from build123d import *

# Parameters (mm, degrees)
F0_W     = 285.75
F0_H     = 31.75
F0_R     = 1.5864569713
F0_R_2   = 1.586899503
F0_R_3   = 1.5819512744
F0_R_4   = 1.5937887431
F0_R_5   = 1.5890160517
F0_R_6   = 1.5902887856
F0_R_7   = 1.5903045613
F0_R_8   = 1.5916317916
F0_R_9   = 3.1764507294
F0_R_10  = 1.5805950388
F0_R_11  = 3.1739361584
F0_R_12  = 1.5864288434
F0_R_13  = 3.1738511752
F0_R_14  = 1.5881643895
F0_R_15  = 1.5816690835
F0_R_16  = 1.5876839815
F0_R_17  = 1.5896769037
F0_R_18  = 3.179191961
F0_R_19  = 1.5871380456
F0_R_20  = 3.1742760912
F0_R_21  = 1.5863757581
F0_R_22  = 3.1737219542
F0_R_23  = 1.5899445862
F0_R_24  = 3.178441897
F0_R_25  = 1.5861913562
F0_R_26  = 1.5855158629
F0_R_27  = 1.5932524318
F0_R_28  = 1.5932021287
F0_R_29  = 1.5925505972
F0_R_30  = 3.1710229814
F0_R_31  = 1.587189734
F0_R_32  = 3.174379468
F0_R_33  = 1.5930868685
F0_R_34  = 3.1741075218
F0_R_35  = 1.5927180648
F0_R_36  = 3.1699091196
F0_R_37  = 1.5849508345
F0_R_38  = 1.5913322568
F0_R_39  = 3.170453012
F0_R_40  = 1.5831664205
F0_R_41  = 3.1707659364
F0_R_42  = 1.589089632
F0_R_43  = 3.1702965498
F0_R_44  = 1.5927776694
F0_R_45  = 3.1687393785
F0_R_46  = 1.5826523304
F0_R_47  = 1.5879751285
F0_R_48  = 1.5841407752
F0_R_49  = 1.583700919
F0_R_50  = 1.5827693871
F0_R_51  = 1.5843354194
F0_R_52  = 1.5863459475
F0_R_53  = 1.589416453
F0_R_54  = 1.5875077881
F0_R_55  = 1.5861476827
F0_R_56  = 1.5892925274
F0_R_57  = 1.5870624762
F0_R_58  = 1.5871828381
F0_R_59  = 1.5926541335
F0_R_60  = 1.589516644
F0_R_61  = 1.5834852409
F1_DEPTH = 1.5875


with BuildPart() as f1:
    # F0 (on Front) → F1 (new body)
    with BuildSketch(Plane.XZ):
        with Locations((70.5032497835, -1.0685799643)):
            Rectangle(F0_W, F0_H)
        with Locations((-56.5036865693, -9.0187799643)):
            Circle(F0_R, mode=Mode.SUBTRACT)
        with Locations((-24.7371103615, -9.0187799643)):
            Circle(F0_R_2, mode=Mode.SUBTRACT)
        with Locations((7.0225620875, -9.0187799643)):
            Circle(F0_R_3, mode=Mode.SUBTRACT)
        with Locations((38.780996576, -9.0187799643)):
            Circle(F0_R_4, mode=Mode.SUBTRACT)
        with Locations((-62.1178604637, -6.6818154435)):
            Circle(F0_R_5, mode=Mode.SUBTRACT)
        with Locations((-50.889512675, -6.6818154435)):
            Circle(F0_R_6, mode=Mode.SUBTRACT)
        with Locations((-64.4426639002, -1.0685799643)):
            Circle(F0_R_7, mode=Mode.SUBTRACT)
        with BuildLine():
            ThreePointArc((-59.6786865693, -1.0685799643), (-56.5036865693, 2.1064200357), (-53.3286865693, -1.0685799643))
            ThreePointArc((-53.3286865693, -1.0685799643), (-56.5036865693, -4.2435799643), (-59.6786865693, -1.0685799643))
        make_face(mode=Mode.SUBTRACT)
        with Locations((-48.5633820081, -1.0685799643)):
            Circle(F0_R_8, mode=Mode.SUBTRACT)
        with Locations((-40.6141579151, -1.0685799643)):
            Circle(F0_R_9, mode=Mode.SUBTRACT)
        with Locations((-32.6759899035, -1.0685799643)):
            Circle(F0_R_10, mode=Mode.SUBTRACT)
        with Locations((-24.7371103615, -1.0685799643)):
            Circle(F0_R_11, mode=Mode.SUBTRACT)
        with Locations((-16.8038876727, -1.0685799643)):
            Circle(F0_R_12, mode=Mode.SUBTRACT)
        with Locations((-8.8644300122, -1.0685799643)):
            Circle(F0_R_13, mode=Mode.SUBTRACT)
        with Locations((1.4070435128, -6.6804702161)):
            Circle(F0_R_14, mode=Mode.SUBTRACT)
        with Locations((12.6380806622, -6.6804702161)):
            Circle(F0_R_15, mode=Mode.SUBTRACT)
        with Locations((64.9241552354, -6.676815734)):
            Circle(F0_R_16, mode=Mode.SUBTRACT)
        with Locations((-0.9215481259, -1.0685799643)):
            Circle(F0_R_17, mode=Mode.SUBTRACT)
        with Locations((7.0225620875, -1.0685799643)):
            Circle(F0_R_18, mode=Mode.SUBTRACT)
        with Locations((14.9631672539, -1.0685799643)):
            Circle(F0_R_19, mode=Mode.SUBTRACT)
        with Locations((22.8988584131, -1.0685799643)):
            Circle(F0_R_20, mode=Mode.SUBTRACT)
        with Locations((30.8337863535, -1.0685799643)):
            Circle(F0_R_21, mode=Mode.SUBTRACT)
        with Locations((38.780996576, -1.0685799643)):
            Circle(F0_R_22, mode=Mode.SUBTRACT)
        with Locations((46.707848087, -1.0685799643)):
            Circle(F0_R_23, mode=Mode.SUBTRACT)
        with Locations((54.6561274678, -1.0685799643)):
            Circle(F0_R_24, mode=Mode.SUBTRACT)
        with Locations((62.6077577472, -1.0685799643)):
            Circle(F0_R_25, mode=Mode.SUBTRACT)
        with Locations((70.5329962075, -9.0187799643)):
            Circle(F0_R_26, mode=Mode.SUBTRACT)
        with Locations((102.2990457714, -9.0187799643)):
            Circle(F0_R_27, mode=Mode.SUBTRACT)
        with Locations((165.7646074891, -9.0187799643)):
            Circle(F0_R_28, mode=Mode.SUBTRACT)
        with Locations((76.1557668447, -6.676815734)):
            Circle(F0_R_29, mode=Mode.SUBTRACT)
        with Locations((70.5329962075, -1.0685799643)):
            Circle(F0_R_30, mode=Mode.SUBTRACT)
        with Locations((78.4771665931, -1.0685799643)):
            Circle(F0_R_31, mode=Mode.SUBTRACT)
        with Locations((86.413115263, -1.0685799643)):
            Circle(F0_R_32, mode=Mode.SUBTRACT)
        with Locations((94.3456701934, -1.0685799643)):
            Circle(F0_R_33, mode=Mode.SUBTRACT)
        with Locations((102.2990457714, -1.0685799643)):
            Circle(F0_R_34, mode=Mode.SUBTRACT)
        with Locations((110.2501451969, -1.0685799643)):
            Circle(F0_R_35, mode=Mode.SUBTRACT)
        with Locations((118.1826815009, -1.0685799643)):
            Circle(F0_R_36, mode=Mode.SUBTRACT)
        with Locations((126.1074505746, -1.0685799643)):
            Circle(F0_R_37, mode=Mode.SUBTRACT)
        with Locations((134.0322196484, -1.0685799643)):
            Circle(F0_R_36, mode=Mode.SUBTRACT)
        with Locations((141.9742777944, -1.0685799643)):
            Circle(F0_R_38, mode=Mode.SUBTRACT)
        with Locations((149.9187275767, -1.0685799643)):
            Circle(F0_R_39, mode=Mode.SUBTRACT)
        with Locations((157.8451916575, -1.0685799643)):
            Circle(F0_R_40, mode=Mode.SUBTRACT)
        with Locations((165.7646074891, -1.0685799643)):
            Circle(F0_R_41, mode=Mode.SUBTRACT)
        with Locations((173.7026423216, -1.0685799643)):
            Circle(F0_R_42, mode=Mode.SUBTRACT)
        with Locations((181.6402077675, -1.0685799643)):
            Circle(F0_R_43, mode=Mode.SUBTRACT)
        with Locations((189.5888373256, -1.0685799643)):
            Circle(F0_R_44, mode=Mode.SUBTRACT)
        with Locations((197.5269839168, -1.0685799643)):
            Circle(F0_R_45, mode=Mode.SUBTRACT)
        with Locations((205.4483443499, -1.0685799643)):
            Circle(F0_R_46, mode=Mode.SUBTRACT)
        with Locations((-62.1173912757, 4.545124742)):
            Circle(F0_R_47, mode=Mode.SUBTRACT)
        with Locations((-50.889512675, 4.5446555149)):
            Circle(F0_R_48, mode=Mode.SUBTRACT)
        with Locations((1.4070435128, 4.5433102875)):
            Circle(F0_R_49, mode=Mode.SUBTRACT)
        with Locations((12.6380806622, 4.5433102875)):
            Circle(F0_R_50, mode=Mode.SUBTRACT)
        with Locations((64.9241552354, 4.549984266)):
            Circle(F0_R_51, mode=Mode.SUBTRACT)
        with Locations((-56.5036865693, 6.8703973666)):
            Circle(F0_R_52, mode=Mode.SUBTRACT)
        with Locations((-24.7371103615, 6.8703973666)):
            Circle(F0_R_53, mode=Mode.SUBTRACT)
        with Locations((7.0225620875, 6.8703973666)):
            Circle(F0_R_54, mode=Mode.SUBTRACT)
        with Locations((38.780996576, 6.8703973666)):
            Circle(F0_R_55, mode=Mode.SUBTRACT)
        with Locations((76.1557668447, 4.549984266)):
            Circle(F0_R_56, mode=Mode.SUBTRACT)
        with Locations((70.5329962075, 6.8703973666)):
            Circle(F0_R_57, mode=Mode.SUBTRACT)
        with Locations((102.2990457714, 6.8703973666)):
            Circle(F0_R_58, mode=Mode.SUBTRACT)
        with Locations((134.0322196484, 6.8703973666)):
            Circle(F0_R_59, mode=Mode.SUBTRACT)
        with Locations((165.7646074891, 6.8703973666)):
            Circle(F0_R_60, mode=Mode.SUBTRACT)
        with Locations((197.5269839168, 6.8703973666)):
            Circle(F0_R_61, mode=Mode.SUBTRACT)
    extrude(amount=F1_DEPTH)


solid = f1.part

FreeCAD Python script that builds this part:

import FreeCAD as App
import Part
import Sketcher
Q = App.Units.Quantity

doc = App.newDocument("Part")
body = doc.addObject("PartDesign::Body", "Body")

# Sketch on XZ plane
sketch1 = body.newObject("Sketcher::SketchObject", "Sketch")
sketch1.AttachmentSupport = (doc.getObject("XZ_Plane"), [""])
sketch1.MapMode = "FlatFace"
sketch1.addGeometry([
    Part.LineSegment(App.Vector(-72.4, 14.8, 0), App.Vector(-72.4, -16.9, 0)),  # 0
    Part.LineSegment(App.Vector(-72.4, -16.9, 0), App.Vector(213.4, -16.9, 0)),  # 1
    Part.LineSegment(App.Vector(213.4, -16.9, 0), App.Vector(213.4, 14.8, 0)),  # 2
    Part.LineSegment(App.Vector(213.4, 14.8, 0), App.Vector(-72.4, 14.8, 0)),  # 3
    Part.Circle(App.Vector(-56.5, -9, 0), App.Vector(0, 0, 1), 1.6),  # 4
    Part.Circle(App.Vector(-24.7, -9, 0), App.Vector(0, 0, 1), 1.6),  # 5
    Part.Circle(App.Vector(-62.1, -6.7, 0), App.Vector(0, 0, 1), 1.6),  # 6
    Part.Circle(App.Vector(-50.9, -6.7, 0), App.Vector(0, 0, 1), 1.6),  # 7
    Part.Circle(App.Vector(1.4, -6.7, 0), App.Vector(0, 0, 1), 1.6),  # 8
    Part.Circle(App.Vector(7, -9, 0), App.Vector(0, 0, 1), 1.6),  # 9
    Part.Circle(App.Vector(38.8, -9, 0), App.Vector(0, 0, 1), 1.6),  # 10
    Part.Circle(App.Vector(12.6, -6.7, 0), App.Vector(0, 0, 1), 1.6),  # 11
    Part.Circle(App.Vector(64.9, -6.7, 0), App.Vector(0, 0, 1), 1.6),  # 12
    Part.Circle(App.Vector(70.5, -9, 0), App.Vector(0, 0, 1), 1.6),  # 13
    Part.Circle(App.Vector(102.3, -9, 0), App.Vector(0, 0, 1), 1.6),  # 14
    Part.Circle(App.Vector(76.2, -6.7, 0), App.Vector(0, 0, 1), 1.6),  # 15
    Part.Circle(App.Vector(165.8, -9, 0), App.Vector(0, 0, 1), 1.6),  # 16
    Part.Circle(App.Vector(-64.4, -1.1, 0), App.Vector(0, 0, 1), 1.6),  # 17
    Part.Circle(App.Vector(-56.5, -1.1, 0), App.Vector(0, 0, 1), 3.2),  # 18
    Part.Circle(App.Vector(-48.6, -1.1, 0), App.Vector(0, 0, 1), 1.6),  # 19
    Part.Circle(App.Vector(-40.6, -1.1, 0), App.Vector(0, 0, 1), 3.2),  # 20
    Part.Circle(App.Vector(-32.7, -1.1, 0), App.Vector(0, 0, 1), 1.6),  # 21
    Part.Circle(App.Vector(-24.7, -1.1, 0), App.Vector(0, 0, 1), 3.2),  # 22
    Part.Circle(App.Vector(-16.8, -1.1, 0), App.Vector(0, 0, 1), 1.6),  # 23
    Part.Circle(App.Vector(-8.9, -1.1, 0), App.Vector(0, 0, 1), 3.2),  # 24
    Part.Circle(App.Vector(-0.9, -1.1, 0), App.Vector(0, 0, 1), 1.6),  # 25
    Part.Circle(App.Vector(7, -1.1, 0), App.Vector(0, 0, 1), 3.2),  # 26
    Part.Circle(App.Vector(15, -1.1, 0), App.Vector(0, 0, 1), 1.6),  # 27
    Part.Circle(App.Vector(22.9, -1.1, 0), App.Vector(0, 0, 1), 3.2),  # 28
    Part.Circle(App.Vector(30.8, -1.1, 0), App.Vector(0, 0, 1), 1.6),  # 29
    Part.Circle(App.Vector(38.8, -1.1, 0), App.Vector(0, 0, 1), 3.2),  # 30
    Part.Circle(App.Vector(46.7, -1.1, 0), App.Vector(0, 0, 1), 1.6),  # 31
    Part.Circle(App.Vector(54.7, -1.1, 0), App.Vector(0, 0, 1), 3.2),  # 32
    Part.Circle(App.Vector(62.6, -1.1, 0), App.Vector(0, 0, 1), 1.6),  # 33
    Part.Circle(App.Vector(-62.1, 4.5, 0), App.Vector(0, 0, 1), 1.6),  # 34
    Part.Circle(App.Vector(-50.9, 4.5, 0), App.Vector(0, 0, 1), 1.6),  # 35
    Part.Circle(App.Vector(1.4, 4.5, 0), App.Vector(0, 0, 1), 1.6),  # 36
    Part.Circle(App.Vector(-56.5, 6.9, 0), App.Vector(0, 0, 1), 1.6),  # 37
    Part.Circle(App.Vector(-24.7, 6.9, 0), App.Vector(0, 0, 1), 1.6),  # 38
    Part.Circle(App.Vector(12.6, 4.5, 0), App.Vector(0, 0, 1), 1.6),  # 39
    Part.Circle(App.Vector(64.9, 4.5, 0), App.Vector(0, 0, 1), 1.6),  # 40
    Part.Circle(App.Vector(7, 6.9, 0), App.Vector(0, 0, 1), 1.6),  # 41
    Part.Circle(App.Vector(38.8, 6.9, 0), App.Vector(0, 0, 1), 1.6),  # 42
    Part.Circle(App.Vector(70.5, -1.1, 0), App.Vector(0, 0, 1), 3.2),  # 43
    Part.Circle(App.Vector(78.5, -1.1, 0), App.Vector(0, 0, 1), 1.6),  # 44
    Part.Circle(App.Vector(86.4, -1.1, 0), App.Vector(0, 0, 1), 3.2),  # 45
    Part.Circle(App.Vector(94.3, -1.1, 0), App.Vector(0, 0, 1), 1.6),  # 46
    Part.Circle(App.Vector(102.3, -1.1, 0), App.Vector(0, 0, 1), 3.2),  # 47
    Part.Circle(App.Vector(110.3, -1.1, 0), App.Vector(0, 0, 1), 1.6),  # 48
    Part.Circle(App.Vector(118.2, -1.1, 0), App.Vector(0, 0, 1), 3.2),  # 49
    Part.Circle(App.Vector(126.1, -1.1, 0), App.Vector(0, 0, 1), 1.6),  # 50
    Part.Circle(App.Vector(134, -1.1, 0), App.Vector(0, 0, 1), 3.2),  # 51
    Part.Circle(App.Vector(142, -1.1, 0), App.Vector(0, 0, 1), 1.6),  # 52
    Part.Circle(App.Vector(149.9, -1.1, 0), App.Vector(0, 0, 1), 3.2),  # 53
    Part.Circle(App.Vector(157.8, -1.1, 0), App.Vector(0, 0, 1), 1.6),  # 54
    Part.Circle(App.Vector(165.8, -1.1, 0), App.Vector(0, 0, 1), 3.2),  # 55
    Part.Circle(App.Vector(173.7, -1.1, 0), App.Vector(0, 0, 1), 1.6),  # 56
    Part.Circle(App.Vector(181.6, -1.1, 0), App.Vector(0, 0, 1), 3.2),  # 57
    Part.Circle(App.Vector(189.6, -1.1, 0), App.Vector(0, 0, 1), 1.6),  # 58
    Part.Circle(App.Vector(197.5, -1.1, 0), App.Vector(0, 0, 1), 3.2),  # 59
    Part.Circle(App.Vector(205.4, -1.1, 0), App.Vector(0, 0, 1), 1.6),  # 60
    Part.Circle(App.Vector(76.2, 4.5, 0), App.Vector(0, 0, 1), 1.6),  # 61
    Part.Circle(App.Vector(70.5, 6.9, 0), App.Vector(0, 0, 1), 1.6),  # 62
    Part.Circle(App.Vector(102.3, 6.9, 0), App.Vector(0, 0, 1), 1.6),  # 63
    Part.Circle(App.Vector(134, 6.9, 0), App.Vector(0, 0, 1), 1.6),  # 64
    Part.Circle(App.Vector(165.8, 6.9, 0), App.Vector(0, 0, 1), 1.6),  # 65
    Part.Circle(App.Vector(197.5, 6.9, 0), App.Vector(0, 0, 1), 1.6),  # 66
], False)
sketch1.addConstraint([
    Sketcher.Constraint("Coincident", 0, 2, 1, 1),
    Sketcher.Constraint("Coincident", 1, 2, 2, 1),
    Sketcher.Constraint("Coincident", 2, 2, 3, 1),
    Sketcher.Constraint("Coincident", 3, 2, 0, 1),
    Sketcher.Constraint("Vertical", 0),
    Sketcher.Constraint("Horizontal", 1),
    Sketcher.Constraint("Vertical", 2),
    Sketcher.Constraint("Horizontal", 3),
    Sketcher.Constraint("Equal", 49, 51),
    Sketcher.Constraint("Horizontal", 4, 3, 5, 3),
    Sketcher.Constraint("Horizontal", 6, 3, 7, 3),
    Sketcher.Constraint("Horizontal", 5, 3, 9, 3),
    Sketcher.Constraint("Horizontal", 9, 3, 10, 3),
    Sketcher.Constraint("Horizontal", 8, 3, 11, 3),
    Sketcher.Constraint("Horizontal", 10, 3, 13, 3),
    Sketcher.Constraint("Horizontal", 13, 3, 14, 3),
    Sketcher.Constraint("Horizontal", 12, 3, 15, 3),
    Sketcher.Constraint("Horizontal", 14, 3, 16, 3),
    Sketcher.Constraint("Horizontal", 17, 3, 18, 3),
    Sketcher.Constraint("Horizontal", 18, 3, 19, 3),
    Sketcher.Constraint("Horizontal", 19, 3, 20, 3),
    Sketcher.Constraint("Horizontal", 20, 3, 21, 3),
    Sketcher.Constraint("Horizontal", 21, 3, 22, 3),
    Sketcher.Constraint("Horizontal", 22, 3, 23, 3),
    Sketcher.Constraint("Horizontal", 23, 3, 24, 3),
    Sketcher.Constraint("Horizontal", 24, 3, 25, 3),
    Sketcher.Constraint("Horizontal", 25, 3, 26, 3),
    Sketcher.Constraint("Horizontal", 26, 3, 27, 3),
    Sketcher.Constraint("Horizontal", 27, 3, 28, 3),
    Sketcher.Constraint("Horizontal", 28, 3, 29, 3),
    Sketcher.Constraint("Horizontal", 29, 3, 30, 3),
    Sketcher.Constraint("Horizontal", 30, 3, 31, 3),
    Sketcher.Constraint("Horizontal", 31, 3, 32, 3),
    Sketcher.Constraint("Horizontal", 32, 3, 33, 3),
    Sketcher.Constraint("Horizontal", 37, 3, 38, 3),
    Sketcher.Constraint("Horizontal", 36, 3, 39, 3),
    Sketcher.Constraint("Horizontal", 38, 3, 41, 3),
    Sketcher.Constraint("Horizontal", 41, 3, 42, 3),
    Sketcher.Constraint("Horizontal", 33, 3, 43, 3),
    Sketcher.Constraint("Horizontal", 43, 3, 44, 3),
    Sketcher.Constraint("Horizontal", 44, 3, 45, 3),
    Sketcher.Constraint("Horizontal", 45, 3, 46, 3),
    Sketcher.Constraint("Horizontal", 46, 3, 47, 3),
    Sketcher.Constraint("Horizontal", 47, 3, 48, 3),
    Sketcher.Constraint("Horizontal", 48, 3, 49, 3),
    Sketcher.Constraint("Horizontal", 49, 3, 50, 3),
    Sketcher.Constraint("Horizontal", 50, 3, 51, 3),
    Sketcher.Constraint("Horizontal", 51, 3, 52, 3),
    Sketcher.Constraint("Horizontal", 52, 3, 53, 3),
    Sketcher.Constraint("Horizontal", 53, 3, 54, 3),
    Sketcher.Constraint("Horizontal", 54, 3, 55, 3),
    Sketcher.Constraint("Horizontal", 55, 3, 56, 3),
    Sketcher.Constraint("Horizontal", 56, 3, 57, 3),
    Sketcher.Constraint("Horizontal", 57, 3, 58, 3),
    Sketcher.Constraint("Horizontal", 58, 3, 59, 3),
    Sketcher.Constraint("Horizontal", 59, 3, 60, 3),
    Sketcher.Constraint("Horizontal", 40, 3, 61, 3),
    Sketcher.Constraint("Horizontal", 42, 3, 62, 3),
    Sketcher.Constraint("Horizontal", 62, 3, 63, 3),
    Sketcher.Constraint("Horizontal", 63, 3, 64, 3),
    Sketcher.Constraint("Horizontal", 64, 3, 65, 3),
    Sketcher.Constraint("Horizontal", 65, 3, 66, 3),
    Sketcher.Constraint("Vertical", 4, 3, 18, 3),
    Sketcher.Constraint("Vertical", 5, 3, 22, 3),
    Sketcher.Constraint("Vertical", 9, 3, 26, 3),
    Sketcher.Constraint("Vertical", 10, 3, 30, 3),
    Sketcher.Constraint("Vertical", 7, 3, 35, 3),
    Sketcher.Constraint("Vertical", 8, 3, 36, 3),
    Sketcher.Constraint("Vertical", 18, 3, 37, 3),
    Sketcher.Constraint("Vertical", 22, 3, 38, 3),
    Sketcher.Constraint("Vertical", 11, 3, 39, 3),
    Sketcher.Constraint("Vertical", 12, 3, 40, 3),
    Sketcher.Constraint("Vertical", 26, 3, 41, 3),
    Sketcher.Constraint("Vertical", 30, 3, 42, 3),
    Sketcher.Constraint("Vertical", 13, 3, 43, 3),
    Sketcher.Constraint("Vertical", 14, 3, 47, 3),
    Sketcher.Constraint("Vertical", 16, 3, 55, 3),
    Sketcher.Constraint("Vertical", 15, 3, 61, 3),
    Sketcher.Constraint("Vertical", 43, 3, 62, 3),
    Sketcher.Constraint("Vertical", 47, 3, 63, 3),
    Sketcher.Constraint("Vertical", 51, 3, 64, 3),
    Sketcher.Constraint("Vertical", 55, 3, 65, 3),
    Sketcher.Constraint("Vertical", 59, 3, 66, 3),
    Sketcher.Constraint("Diameter", 18, Q("0.25 in")),
    Sketcher.Constraint("DistanceX", 1, 1, 1, 2, Q("11.25 in")),
    Sketcher.Constraint("DistanceY", 0, 2, 0, 1, Q("1.25 in")),
    Sketcher.Constraint("Diameter", 5, 3.173799),
    Sketcher.Constraint("Diameter", 15, 3.185101),
    Sketcher.Constraint("Diameter", 20, 6.352901),
    Sketcher.Constraint("Diameter", 36, 3.167402),
    Sketcher.Constraint("Diameter", 50, 3.169902),
    Sketcher.Constraint("Diameter", 8, 3.176329),
    Sketcher.Constraint("Diameter", 11, 3.163338),
    Sketcher.Constraint("Diameter", 13, 3.171032),
    Sketcher.Constraint("Diameter", 17, 3.180609),
    Sketcher.Constraint("Diameter", 21, 3.16119),
    Sketcher.Constraint("Diameter", 29, 3.172752),
    Sketcher.Constraint("Diameter", 31, 3.179889),
    Sketcher.Constraint("Diameter", 34, 3.17595),
    Sketcher.Constraint("Diameter", 35, 3.168282),
    Sketcher.Constraint("Diameter", 37, 3.172692),
    Sketcher.Constraint("Diameter", 39, 3.165539),
    Sketcher.Constraint("Diameter", 40, 3.168671),
    Sketcher.Constraint("Diameter", 44, 3.174379),
    Sketcher.Constraint("Diameter", 45, 6.348759),
    Sketcher.Constraint("Diameter", 49, 6.339818),
    Sketcher.Constraint("Diameter", 55, 6.341532),
    Sketcher.Constraint("Diameter", 56, 3.178179),
    Sketcher.Constraint("Diameter", 59, 6.337479),
    Sketcher.Constraint("Diameter", 64, 3.185308),
    Sketcher.Constraint("Diameter", 66, 3.16697),
    Sketcher.Constraint("Diameter", 4, 3.172914),
    Sketcher.Constraint("Diameter", 6, 3.178032),
    Sketcher.Constraint("Diameter", 7, 3.180578),
    Sketcher.Constraint("Diameter", 9, 3.163903),
    Sketcher.Constraint("Diameter", 10, 3.187577),
    Sketcher.Constraint("Diameter", 12, 3.175368),
    Sketcher.Constraint("Diameter", 14, 3.186505),
    Sketcher.Constraint("Diameter", 16, 3.186404),
    Sketcher.Constraint("Diameter", 19, 3.183264),
    Sketcher.Constraint("Diameter", 22, 6.347872),
    Sketcher.Constraint("Diameter", 23, 3.172858),
    Sketcher.Constraint("Diameter", 24, 6.347702),
    Sketcher.Constraint("Diameter", 25, 3.179354),
    Sketcher.Constraint("Diameter", 26, 6.358384),
    Sketcher.Constraint("Diameter", 27, 3.174276),
    Sketcher.Constraint("Diameter", 28, 6.348552),
    Sketcher.Constraint("Diameter", 30, 6.347444),
    Sketcher.Constraint("Diameter", 32, 6.356884),
    Sketcher.Constraint("Diameter", 33, 3.172383),
    Sketcher.Constraint("Diameter", 38, 3.178833),
    Sketcher.Constraint("Diameter", 41, 3.175016),
    Sketcher.Constraint("Diameter", 42, 3.172295),
    Sketcher.Constraint("Diameter", 43, 6.342046),
    Sketcher.Constraint("Diameter", 46, 3.186174),
    Sketcher.Constraint("Diameter", 47, 6.348215),
    Sketcher.Constraint("Diameter", 48, 3.185436),
    Sketcher.Constraint("Diameter", 52, 3.182665),
    Sketcher.Constraint("Diameter", 53, 6.340906),
    Sketcher.Constraint("Diameter", 54, 3.166333),
    Sketcher.Constraint("Diameter", 57, 6.340593),
    Sketcher.Constraint("Diameter", 58, 3.185555),
    Sketcher.Constraint("Diameter", 60, 3.165305),
    Sketcher.Constraint("Diameter", 61, 3.178585),
    Sketcher.Constraint("Diameter", 62, 3.174125),
    Sketcher.Constraint("Diameter", 63, 3.174366),
    Sketcher.Constraint("Diameter", 65, 3.179033),
    Sketcher.Constraint("DistanceY", 4, 3, -1, 1, 9.01878),
    Sketcher.Constraint("DistanceX", 5, 3, -1, 1, 24.73711),
    Sketcher.Constraint("DistanceX", 6, 3, -1, 1, 62.11786),
    Sketcher.Constraint("DistanceY", 8, 3, -1, 1, 6.68047),
    Sketcher.Constraint("DistanceX", -1, 1, 11, 3, 12.638081),
    Sketcher.Constraint("DistanceY", 17, 3, -1, 1, 1.06858),
    Sketcher.Constraint("DistanceX", 21, 3, -1, 1, 32.67599),
    Sketcher.Constraint("DistanceX", 24, 3, -1, 1, 8.86443),
    Sketcher.Constraint("DistanceX", 25, 3, -1, 1, 0.921548),
    Sketcher.Constraint("DistanceX", -1, 1, 28, 3, 22.898858),
    Sketcher.Constraint("DistanceX", -1, 1, 31, 3, 46.707848),
    Sketcher.Constraint("DistanceX", 34, 3, -1, 1, 62.117391),
    Sketcher.Constraint("DistanceY", -1, 1, 36, 3, 4.54331),
    Sketcher.Constraint("DistanceX", -1, 1, 46, 3, 94.34567),
    Sketcher.Constraint("DistanceX", -1, 1, 49, 3, 118.182682),
    Sketcher.Constraint("DistanceX", -1, 1, 50, 3, 126.107451),
    Sketcher.Constraint("DistanceX", -1, 1, 51, 3, 134.03222),
    Sketcher.Constraint("DistanceX", -1, 1, 54, 3, 157.845192),
    Sketcher.Constraint("DistanceX", 0, 2, -1, 1, 72.37175),
    Sketcher.Constraint("DistanceY", 0, 2, -1, 1, 16.94358),
    Sketcher.Constraint("DistanceX", 4, 3, -1, 1, 56.503687),
    Sketcher.Constraint("DistanceY", 6, 3, -1, 1, 6.681815),
    Sketcher.Constraint("DistanceX", 7, 3, -1, 1, 50.889513),
    Sketcher.Constraint("DistanceX", -1, 1, 8, 3, 1.407044),
    Sketcher.Constraint("DistanceX", -1, 1, 9, 3, 7.022562),
    Sketcher.Constraint("DistanceX", -1, 1, 10, 3, 38.780997),
    Sketcher.Constraint("DistanceX", -1, 1, 12, 3, 64.924155),
    Sketcher.Constraint("DistanceY", 12, 3, -1, 1, 6.676816),
    Sketcher.Constraint("DistanceX", -1, 1, 13, 3, 70.532996),
    Sketcher.Constraint("DistanceX", -1, 1, 14, 3, 102.299046),
    Sketcher.Constraint("DistanceX", -1, 1, 15, 3, 76.155767),
    Sketcher.Constraint("DistanceX", -1, 1, 16, 3, 165.764607),
    Sketcher.Constraint("DistanceX", 17, 3, -1, 1, 64.442664),
    Sketcher.Constraint("DistanceX", 19, 3, -1, 1, 48.563382),
    Sketcher.Constraint("DistanceX", 20, 3, -1, 1, 40.614158),
    Sketcher.Constraint("DistanceX", 23, 3, -1, 1, 16.803888),
    Sketcher.Constraint("DistanceX", -1, 1, 27, 3, 14.963167),
    Sketcher.Constraint("DistanceX", -1, 1, 29, 3, 30.833786),
    Sketcher.Constraint("DistanceX", -1, 1, 32, 3, 54.656127),
    Sketcher.Constraint("DistanceX", -1, 1, 33, 3, 62.607758),
    Sketcher.Constraint("DistanceY", -1, 1, 34, 3, 4.545125),
    Sketcher.Constraint("DistanceY", -1, 1, 35, 3, 4.544656),
    Sketcher.Constraint("DistanceY", -1, 1, 37, 3, 6.870397),
    Sketcher.Constraint("DistanceY", -1, 1, 40, 3, 4.549984),
    Sketcher.Constraint("DistanceX", -1, 1, 44, 3, 78.477167),
    Sketcher.Constraint("DistanceX", -1, 1, 45, 3, 86.413115),
    Sketcher.Constraint("DistanceX", -1, 1, 48, 3, 110.250145),
    Sketcher.Constraint("DistanceX", -1, 1, 52, 3, 141.974278),
    Sketcher.Constraint("DistanceX", -1, 1, 53, 3, 149.918728),
    Sketcher.Constraint("DistanceX", -1, 1, 56, 3, 173.702642),
    Sketcher.Constraint("DistanceX", -1, 1, 57, 3, 181.640208),
    Sketcher.Constraint("DistanceX", -1, 1, 58, 3, 189.588837),
    Sketcher.Constraint("DistanceX", -1, 1, 59, 3, 197.526984),
    Sketcher.Constraint("DistanceX", -1, 1, 60, 3, 205.448344),
])
pad1 = body.newObject("PartDesign::Pad", "Pad")
pad1.Profile = sketch1
pad1.Length = Q("0.0625 in")

doc.recompute()
